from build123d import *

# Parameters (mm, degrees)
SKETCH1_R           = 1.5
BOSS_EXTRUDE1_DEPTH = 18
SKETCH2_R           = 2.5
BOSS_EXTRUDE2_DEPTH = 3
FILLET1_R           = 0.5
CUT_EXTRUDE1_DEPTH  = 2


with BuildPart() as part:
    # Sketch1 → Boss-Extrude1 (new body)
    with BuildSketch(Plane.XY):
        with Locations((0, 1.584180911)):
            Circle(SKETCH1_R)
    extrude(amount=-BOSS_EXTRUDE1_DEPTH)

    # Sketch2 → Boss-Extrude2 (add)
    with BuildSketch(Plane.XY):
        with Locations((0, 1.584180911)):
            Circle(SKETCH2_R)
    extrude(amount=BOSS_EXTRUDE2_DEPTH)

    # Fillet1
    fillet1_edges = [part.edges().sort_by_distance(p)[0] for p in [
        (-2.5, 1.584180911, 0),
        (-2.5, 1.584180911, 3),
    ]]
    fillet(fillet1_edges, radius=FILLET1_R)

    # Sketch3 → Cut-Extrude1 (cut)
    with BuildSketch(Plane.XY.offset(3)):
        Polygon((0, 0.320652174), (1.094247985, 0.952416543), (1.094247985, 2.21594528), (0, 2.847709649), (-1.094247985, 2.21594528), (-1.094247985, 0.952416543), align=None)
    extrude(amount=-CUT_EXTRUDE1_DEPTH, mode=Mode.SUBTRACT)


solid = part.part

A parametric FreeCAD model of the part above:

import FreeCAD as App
import Part
import Sketcher
Q = App.Units.Quantity


def edges_at(feature, points):
    """Names of the edges that pass closest to the given points."""
    edges = feature.Shape.Edges
    near = lambda p: min(range(len(edges)), key=lambda i: edges[i].distToShape(Part.Vertex(*p))[0])
    return sorted({f"Edge{near(p) + 1}" for p in points})

doc = App.newDocument("Part")
body = doc.addObject("PartDesign::Body", "Body")

# Sketch on XY plane
sketch1 = body.newObject("Sketcher::SketchObject", "Sketch")
sketch1.AttachmentSupport = (doc.getObject("XY_Plane"), [""])
sketch1.MapMode = "FlatFace"
sketch1.addGeometry(Part.Circle(App.Vector(0, 1.6, 0), App.Vector(0, 0, 1), 1.5), False)
sketch1.addConstraint([
    Sketcher.Constraint("PointOnObject", 0, 3, -2),
    Sketcher.Constraint("Diameter", 0, Q("3 mm")),
    Sketcher.Constraint("DistanceY", -1, 1, 0, 3, Q("1.584181 mm")),
])
pad1 = body.newObject("PartDesign::Pad", "Pad")
pad1.Profile = sketch1
pad1.Length = 18
pad1.Reversed = True

# Sketch on XY plane
sketch2 = body.newObject("Sketcher::SketchObject", "Sketch001")
sketch2.AttachmentSupport = (doc.getObject("XY_Plane"), [""])
sketch2.MapMode = "FlatFace"
sketch2.addGeometry(Part.Circle(App.Vector(0, 1.6, 0), App.Vector(0, 0, 1), 2.5), False)
sketch2.addConstraint([
    Sketcher.Constraint("PointOnObject", 0, 3, -2),
    Sketcher.Constraint("Diameter", 0, Q("5 mm")),
    Sketcher.Constraint("DistanceY", -1, 1, 0, 3, Q("1.584181 mm")),
])
pad2 = body.newObject("PartDesign::Pad", "Pad001")
pad2.Profile = sketch2
pad2.Length = 3
doc.recompute()

fillet = body.newObject("PartDesign::Fillet", "Fillet")
fillet.Base = (pad2, edges_at(pad2, [(-2.5, 1.584, 0), (-2.5, 1.584, 3)]))
fillet.Radius = 0.5

# Sketch on XY plane
sketch3 = body.newObject("Sketcher::SketchObject", "Sketch002")
sketch3.AttachmentSupport = (doc.getObject("XY_Plane"), [""])
sketch3.MapMode = "FlatFace"
sketch3.AttachmentOffset = App.Placement(App.Vector(0, 0, 3), App.Rotation())
sketch3.addGeometry([
    Part.LineSegment(App.Vector(0, 0.3, 0), App.Vector(1.1, 1, 0)),  # 0
    Part.LineSegment(App.Vector(1.1, 1, 0), App.Vector(1.1, 2.2, 0)),  # 1
    Part.LineSegment(App.Vector(1.1, 2.2, 0), App.Vector(0, 2.8, 0)),  # 2
    Part.LineSegment(App.Vector(0, 2.8, 0), App.Vector(-1.1, 2.2, 0)),  # 3
    Part.LineSegment(App.Vector(-1.1, 2.2, 0), App.Vector(-1.1, 1, 0)),  # 4
    Part.LineSegment(App.Vector(-1.1, 1, 0), App.Vector(0, 0.3, 0)),  # 5
], False)
sketch3.addConstraint([
    Sketcher.Constraint("Coincident", 0, 2, 1, 1),
    Sketcher.Constraint("Coincident", 1, 2, 2, 1),
    Sketcher.Constraint("Coincident", 2, 2, 3, 1),
    Sketcher.Constraint("Coincident", 3, 2, 4, 1),
    Sketcher.Constraint("Coincident", 4, 2, 5, 1),
    Sketcher.Constraint("Coincident", 5, 2, 0, 1),
    Sketcher.Constraint("Vertical", 1),
    Sketcher.Constraint("Vertical", 4),
    Sketcher.Constraint("Symmetric", 1, 2, 3, 2, -2),
    Sketcher.Constraint("PointOnObject", 2, 2, -2),
    Sketcher.Constraint("PointOnObject", 5, 2, -2),
    Sketcher.Constraint("Parallel", 0, 3),
    Sketcher.Constraint("Parallel", 2, 5),
    Sketcher.Constraint("Angle", 0, Q("30 deg")),
    Sketcher.Constraint("DistanceY", 1, 1, 1, 2, Q("1.263529 mm")),
    Sketcher.Constraint("Distance", 0, Q("1.263529 mm")),
    Sketcher.Constraint("DistanceY", -1, 1, 2, 2, Q("2.84771 mm")),
])
pocket1 = body.newObject("PartDesign::Pocket", "Pocket")
pocket1.Profile = sketch3
pocket1.Length = 2

doc.recompute()
